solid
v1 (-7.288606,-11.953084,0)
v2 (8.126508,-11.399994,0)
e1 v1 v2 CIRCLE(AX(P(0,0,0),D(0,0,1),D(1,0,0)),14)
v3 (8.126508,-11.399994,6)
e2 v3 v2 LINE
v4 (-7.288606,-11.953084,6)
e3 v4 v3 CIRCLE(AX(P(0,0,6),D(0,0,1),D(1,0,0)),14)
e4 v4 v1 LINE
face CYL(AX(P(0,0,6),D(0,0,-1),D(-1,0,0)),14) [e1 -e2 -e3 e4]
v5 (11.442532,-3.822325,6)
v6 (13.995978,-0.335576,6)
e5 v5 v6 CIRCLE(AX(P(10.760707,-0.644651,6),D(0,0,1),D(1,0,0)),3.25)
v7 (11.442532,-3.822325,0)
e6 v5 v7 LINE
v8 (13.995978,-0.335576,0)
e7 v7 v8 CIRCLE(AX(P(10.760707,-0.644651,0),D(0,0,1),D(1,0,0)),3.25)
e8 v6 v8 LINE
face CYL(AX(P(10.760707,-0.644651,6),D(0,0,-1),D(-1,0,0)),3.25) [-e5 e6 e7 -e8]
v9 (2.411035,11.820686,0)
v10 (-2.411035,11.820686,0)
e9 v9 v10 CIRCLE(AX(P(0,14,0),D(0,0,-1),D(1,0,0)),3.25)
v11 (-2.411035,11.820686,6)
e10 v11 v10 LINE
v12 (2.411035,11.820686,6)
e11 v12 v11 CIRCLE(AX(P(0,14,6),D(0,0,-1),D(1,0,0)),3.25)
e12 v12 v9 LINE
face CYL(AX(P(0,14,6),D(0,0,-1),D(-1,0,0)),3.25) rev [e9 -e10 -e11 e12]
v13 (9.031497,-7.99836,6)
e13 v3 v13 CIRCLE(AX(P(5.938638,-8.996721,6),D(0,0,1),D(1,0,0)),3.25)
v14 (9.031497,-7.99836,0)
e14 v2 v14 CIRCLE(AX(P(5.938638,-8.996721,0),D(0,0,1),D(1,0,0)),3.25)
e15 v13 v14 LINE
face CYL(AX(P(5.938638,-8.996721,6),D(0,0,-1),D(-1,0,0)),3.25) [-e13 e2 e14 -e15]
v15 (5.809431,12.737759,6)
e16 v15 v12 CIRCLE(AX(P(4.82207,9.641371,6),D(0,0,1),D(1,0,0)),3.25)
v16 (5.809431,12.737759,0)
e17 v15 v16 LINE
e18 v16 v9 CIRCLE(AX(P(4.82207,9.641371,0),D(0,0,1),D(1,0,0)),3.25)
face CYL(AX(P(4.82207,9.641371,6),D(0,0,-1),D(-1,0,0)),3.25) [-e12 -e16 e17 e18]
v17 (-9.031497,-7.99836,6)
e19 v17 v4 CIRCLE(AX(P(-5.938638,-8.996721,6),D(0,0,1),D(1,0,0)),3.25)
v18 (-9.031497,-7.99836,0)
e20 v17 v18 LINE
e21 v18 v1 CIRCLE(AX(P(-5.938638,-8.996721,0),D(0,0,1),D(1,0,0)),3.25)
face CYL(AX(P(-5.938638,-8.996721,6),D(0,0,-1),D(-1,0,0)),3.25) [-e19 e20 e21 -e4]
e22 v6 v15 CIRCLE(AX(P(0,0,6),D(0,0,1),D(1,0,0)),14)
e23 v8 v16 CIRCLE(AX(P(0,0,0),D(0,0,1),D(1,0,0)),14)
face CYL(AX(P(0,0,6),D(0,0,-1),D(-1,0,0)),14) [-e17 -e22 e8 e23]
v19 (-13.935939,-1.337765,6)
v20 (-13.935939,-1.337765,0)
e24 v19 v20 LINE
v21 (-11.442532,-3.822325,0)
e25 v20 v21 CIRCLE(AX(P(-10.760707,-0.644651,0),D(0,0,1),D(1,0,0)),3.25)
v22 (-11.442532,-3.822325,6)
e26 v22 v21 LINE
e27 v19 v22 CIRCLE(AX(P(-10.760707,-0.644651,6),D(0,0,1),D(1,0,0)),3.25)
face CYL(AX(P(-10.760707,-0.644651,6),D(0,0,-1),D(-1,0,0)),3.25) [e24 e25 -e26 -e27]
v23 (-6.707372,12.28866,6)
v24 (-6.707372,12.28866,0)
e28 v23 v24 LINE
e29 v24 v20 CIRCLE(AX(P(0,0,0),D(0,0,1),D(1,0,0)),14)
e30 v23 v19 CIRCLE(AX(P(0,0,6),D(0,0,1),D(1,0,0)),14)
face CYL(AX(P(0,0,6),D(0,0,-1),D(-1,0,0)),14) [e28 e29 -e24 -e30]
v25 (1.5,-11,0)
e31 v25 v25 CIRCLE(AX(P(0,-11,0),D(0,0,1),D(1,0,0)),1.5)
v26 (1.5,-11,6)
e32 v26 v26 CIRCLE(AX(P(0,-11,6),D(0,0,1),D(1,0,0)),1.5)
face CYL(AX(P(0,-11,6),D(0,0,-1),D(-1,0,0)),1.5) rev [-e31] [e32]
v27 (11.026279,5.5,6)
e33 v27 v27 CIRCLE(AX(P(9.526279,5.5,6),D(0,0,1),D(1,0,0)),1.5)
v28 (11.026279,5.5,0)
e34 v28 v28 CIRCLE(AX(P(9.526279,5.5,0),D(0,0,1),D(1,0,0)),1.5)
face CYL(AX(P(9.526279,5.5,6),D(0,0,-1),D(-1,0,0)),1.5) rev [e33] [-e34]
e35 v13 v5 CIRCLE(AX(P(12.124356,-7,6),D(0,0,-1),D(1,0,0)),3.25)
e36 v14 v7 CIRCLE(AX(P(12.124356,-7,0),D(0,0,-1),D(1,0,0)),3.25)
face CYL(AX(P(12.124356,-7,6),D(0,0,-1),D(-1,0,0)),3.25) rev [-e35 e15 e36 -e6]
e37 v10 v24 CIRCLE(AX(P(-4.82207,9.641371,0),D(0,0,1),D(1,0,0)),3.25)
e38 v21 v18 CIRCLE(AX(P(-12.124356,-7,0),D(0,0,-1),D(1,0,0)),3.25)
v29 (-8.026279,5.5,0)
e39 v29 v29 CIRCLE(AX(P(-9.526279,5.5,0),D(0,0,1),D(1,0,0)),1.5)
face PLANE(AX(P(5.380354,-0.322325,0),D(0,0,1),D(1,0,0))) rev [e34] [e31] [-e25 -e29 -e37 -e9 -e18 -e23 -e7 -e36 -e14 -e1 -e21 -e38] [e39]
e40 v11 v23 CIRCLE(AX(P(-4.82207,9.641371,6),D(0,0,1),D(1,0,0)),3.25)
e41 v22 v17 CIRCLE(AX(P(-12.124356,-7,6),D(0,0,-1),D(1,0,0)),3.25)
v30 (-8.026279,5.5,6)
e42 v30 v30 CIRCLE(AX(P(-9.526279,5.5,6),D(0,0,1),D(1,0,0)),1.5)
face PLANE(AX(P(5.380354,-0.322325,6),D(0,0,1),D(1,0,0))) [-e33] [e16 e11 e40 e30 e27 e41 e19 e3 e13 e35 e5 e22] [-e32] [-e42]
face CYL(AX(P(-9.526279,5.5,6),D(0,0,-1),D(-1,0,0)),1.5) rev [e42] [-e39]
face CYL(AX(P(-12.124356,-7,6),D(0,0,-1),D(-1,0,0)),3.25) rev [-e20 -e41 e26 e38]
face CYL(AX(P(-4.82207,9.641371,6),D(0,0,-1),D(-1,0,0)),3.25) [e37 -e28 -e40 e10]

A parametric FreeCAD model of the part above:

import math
import FreeCAD as App
import Part
import Sketcher
from FreeCAD import Vector
Q = App.Units.Quantity

doc = App.newDocument("Part")
params = doc.addObject("Spreadsheet::Sheet", "Params")
for row, (alias, value) in enumerate([
    ("sketch1_diameter", "3 mm"),
    ("sketch1_radius", "14 mm"),
    ("sketch1_radius2", "3.25 mm"),
    ("pad1_length", "6 mm"),
], start=1):
    params.set(f"A{row}", alias)
    params.set(f"B{row}", "=" + value)
    params.setAlias(f"B{row}", alias)

body = doc.addObject("PartDesign::Body", "Body")

# Sketch on XY plane
sketch1 = body.newObject("Sketcher::SketchObject", "Sketch")
sketch1.AttachmentSupport = (doc.getObject("XY_Plane"), [""])
sketch1.MapMode = "FlatFace"
sketch1.addGeometry([
    Part.ArcOfCircle(Part.Circle(Vector(0, 14, 0), Vector(0, 0, 1), 3.3), math.radians(-138), math.radians(-42)),  # 0
    Part.ArcOfCircle(Part.Circle(Vector(-4.8, 9.6, 0), Vector(0, 0, 1), 3.2), math.radians(42), math.radians(125)),  # 1
    Part.ArcOfCircle(Part.Circle(Vector(0, 0, 0), Vector(0, 0, 1), 14), math.radians(119), math.radians(185)),  # 2
    Part.ArcOfCircle(Part.Circle(Vector(-10.8, -0.6, 0), Vector(0, 0, 1), 3.2), math.radians(-168), math.radians(-102)),  # 3
    Part.ArcOfCircle(Part.Circle(Vector(-12.1, -7, 0), Vector(0, 0, 1), 3.3), math.radians(-18), math.radians(78)),  # 4
    Part.ArcOfCircle(Part.Circle(Vector(-5.9, -9, 0), Vector(0, 0, 1), 3.2), math.radians(162), math.radians(245)),  # 5
    Part.ArcOfCircle(Part.Circle(Vector(0, 0, 0), Vector(0, 0, 1), 14), math.radians(-121), math.radians(-55)),  # 6
    Part.ArcOfCircle(Part.Circle(Vector(5.9, -9, 0), Vector(0, 0, 1), 3.2), math.radians(-48), math.radians(18)),  # 7
    Part.ArcOfCircle(Part.Circle(Vector(12.1, -7, 0), Vector(0, 0, 1), 3.3), math.radians(102), math.radians(198)),  # 8
    Part.ArcOfCircle(Part.Circle(Vector(10.8, -0.6, 0), Vector(0, 0, 1), 3.2), math.radians(-78), math.radians(5)),  # 9
    Part.ArcOfCircle(Part.Circle(Vector(0, 0, 0), Vector(0, 0, 1), 14), math.radians(-1), math.radians(65)),  # 10
    Part.ArcOfCircle(Part.Circle(Vector(4.8, 9.6, 0), Vector(0, 0, 1), 3.2), math.radians(72), math.radians(138)),  # 11
    Part.Circle(Vector(0, -11, 0), Vector(0, 0, 1), 1.5),  # 12
    Part.Circle(Vector(9.5, 5.5, 0), Vector(0, 0, 1), 1.5),  # 13
    Part.Circle(Vector(-9.5, 5.5, 0), Vector(0, 0, 1), 1.5),  # 14
], False)
sketch1.addConstraint([
    Sketcher.Constraint("Tangent", 0, 1, 1, 1),
    Sketcher.Constraint("Coincident", 1, 2, 2, 1),
    Sketcher.Constraint("Coincident", 2, 2, 3, 1),
    Sketcher.Constraint("Tangent", 3, 2, 4, 2),
    Sketcher.Constraint("Tangent", 4, 1, 5, 1),
    Sketcher.Constraint("Coincident", 5, 2, 6, 1),
    Sketcher.Constraint("Coincident", 6, 2, 7, 1),
    Sketcher.Constraint("Tangent", 7, 2, 8, 2),
    Sketcher.Constraint("Tangent", 8, 1, 9, 1),
    Sketcher.Constraint("Coincident", 9, 2, 10, 1),
    Sketcher.Constraint("Coincident", 10, 2, 11, 1),
    Sketcher.Constraint("Tangent", 11, 2, 0, 2),
    Sketcher.Constraint("Coincident", 2, 3, -1, 1),
    Sketcher.Constraint("Coincident", 6, 3, -1, 1),
    Sketcher.Constraint("Coincident", 10, 3, -1, 1),
    Sketcher.Constraint("Equal", 0, 1),
    Sketcher.Constraint("Equal", 1, 3),
    Sketcher.Constraint("Equal", 3, 4),
    Sketcher.Constraint("Equal", 4, 5),
    Sketcher.Constraint("Equal", 2, 6),
    Sketcher.Constraint("Equal", 5, 7),
    Sketcher.Constraint("Equal", 7, 8),
    Sketcher.Constraint("Equal", 8, 9),
    Sketcher.Constraint("Equal", 6, 10),
    Sketcher.Constraint("Equal", 9, 11),
    Sketcher.Constraint("Equal", 12, 13),
    Sketcher.Constraint("Equal", 13, 14),
    Sketcher.Constraint("Symmetric", 5, 3, 7, 3, -2),
    Sketcher.Constraint("Symmetric", 3, 3, 9, 3, -2),
    Sketcher.Constraint("Symmetric", 1, 3, 11, 3, -2),
    Sketcher.Constraint("Symmetric", 13, 3, 14, 3, -2),
    Sketcher.Constraint("PointOnObject", 12, 3, -2),
    Sketcher.Constraint("Diameter", 12, Q("3 mm")),
    Sketcher.Constraint("Radius", 2, Q("14 mm")),
    Sketcher.Constraint("Radius", 0, Q("3.25 mm")),
    Sketcher.Constraint("DistanceY", -1, 1, 0, 3, Q("14 mm")),
    Sketcher.Constraint("DistanceY", 4, 3, -1, 1, Q("7 mm")),
    Sketcher.Constraint("DistanceY", 12, 3, -1, 1, Q("11 mm")),
    Sketcher.Constraint("DistanceY", -1, 1, 13, 3, Q("5.5 mm")),
    Sketcher.Constraint("DistanceX", 1, 2, 1, 3, Q("1.885302 mm")),
    Sketcher.Constraint("DistanceX", 2, 2, 5, 3, Q("7.997301 mm")),
    Sketcher.Constraint("DistanceX", 6, 2, 9, 3, Q("2.6342 mm")),
    Sketcher.Constraint("DistanceX", 13, 3, 9, 2, Q("4.469698 mm")),
    Sketcher.Constraint("DistanceY", 3, 3, -1, 1, Q("0.644651 mm")),
])
sketch1.setExpression("Constraints[32]", "Params.sketch1_diameter")
sketch1.setExpression("Constraints[33]", "Params.sketch1_radius")
sketch1.setExpression("Constraints[34]", "Params.sketch1_radius2")
pad1 = body.newObject("PartDesign::Pad", "Pad")
pad1.Profile = sketch1
pad1.setExpression("Length", "Params.pad1_length")

doc.recompute()
